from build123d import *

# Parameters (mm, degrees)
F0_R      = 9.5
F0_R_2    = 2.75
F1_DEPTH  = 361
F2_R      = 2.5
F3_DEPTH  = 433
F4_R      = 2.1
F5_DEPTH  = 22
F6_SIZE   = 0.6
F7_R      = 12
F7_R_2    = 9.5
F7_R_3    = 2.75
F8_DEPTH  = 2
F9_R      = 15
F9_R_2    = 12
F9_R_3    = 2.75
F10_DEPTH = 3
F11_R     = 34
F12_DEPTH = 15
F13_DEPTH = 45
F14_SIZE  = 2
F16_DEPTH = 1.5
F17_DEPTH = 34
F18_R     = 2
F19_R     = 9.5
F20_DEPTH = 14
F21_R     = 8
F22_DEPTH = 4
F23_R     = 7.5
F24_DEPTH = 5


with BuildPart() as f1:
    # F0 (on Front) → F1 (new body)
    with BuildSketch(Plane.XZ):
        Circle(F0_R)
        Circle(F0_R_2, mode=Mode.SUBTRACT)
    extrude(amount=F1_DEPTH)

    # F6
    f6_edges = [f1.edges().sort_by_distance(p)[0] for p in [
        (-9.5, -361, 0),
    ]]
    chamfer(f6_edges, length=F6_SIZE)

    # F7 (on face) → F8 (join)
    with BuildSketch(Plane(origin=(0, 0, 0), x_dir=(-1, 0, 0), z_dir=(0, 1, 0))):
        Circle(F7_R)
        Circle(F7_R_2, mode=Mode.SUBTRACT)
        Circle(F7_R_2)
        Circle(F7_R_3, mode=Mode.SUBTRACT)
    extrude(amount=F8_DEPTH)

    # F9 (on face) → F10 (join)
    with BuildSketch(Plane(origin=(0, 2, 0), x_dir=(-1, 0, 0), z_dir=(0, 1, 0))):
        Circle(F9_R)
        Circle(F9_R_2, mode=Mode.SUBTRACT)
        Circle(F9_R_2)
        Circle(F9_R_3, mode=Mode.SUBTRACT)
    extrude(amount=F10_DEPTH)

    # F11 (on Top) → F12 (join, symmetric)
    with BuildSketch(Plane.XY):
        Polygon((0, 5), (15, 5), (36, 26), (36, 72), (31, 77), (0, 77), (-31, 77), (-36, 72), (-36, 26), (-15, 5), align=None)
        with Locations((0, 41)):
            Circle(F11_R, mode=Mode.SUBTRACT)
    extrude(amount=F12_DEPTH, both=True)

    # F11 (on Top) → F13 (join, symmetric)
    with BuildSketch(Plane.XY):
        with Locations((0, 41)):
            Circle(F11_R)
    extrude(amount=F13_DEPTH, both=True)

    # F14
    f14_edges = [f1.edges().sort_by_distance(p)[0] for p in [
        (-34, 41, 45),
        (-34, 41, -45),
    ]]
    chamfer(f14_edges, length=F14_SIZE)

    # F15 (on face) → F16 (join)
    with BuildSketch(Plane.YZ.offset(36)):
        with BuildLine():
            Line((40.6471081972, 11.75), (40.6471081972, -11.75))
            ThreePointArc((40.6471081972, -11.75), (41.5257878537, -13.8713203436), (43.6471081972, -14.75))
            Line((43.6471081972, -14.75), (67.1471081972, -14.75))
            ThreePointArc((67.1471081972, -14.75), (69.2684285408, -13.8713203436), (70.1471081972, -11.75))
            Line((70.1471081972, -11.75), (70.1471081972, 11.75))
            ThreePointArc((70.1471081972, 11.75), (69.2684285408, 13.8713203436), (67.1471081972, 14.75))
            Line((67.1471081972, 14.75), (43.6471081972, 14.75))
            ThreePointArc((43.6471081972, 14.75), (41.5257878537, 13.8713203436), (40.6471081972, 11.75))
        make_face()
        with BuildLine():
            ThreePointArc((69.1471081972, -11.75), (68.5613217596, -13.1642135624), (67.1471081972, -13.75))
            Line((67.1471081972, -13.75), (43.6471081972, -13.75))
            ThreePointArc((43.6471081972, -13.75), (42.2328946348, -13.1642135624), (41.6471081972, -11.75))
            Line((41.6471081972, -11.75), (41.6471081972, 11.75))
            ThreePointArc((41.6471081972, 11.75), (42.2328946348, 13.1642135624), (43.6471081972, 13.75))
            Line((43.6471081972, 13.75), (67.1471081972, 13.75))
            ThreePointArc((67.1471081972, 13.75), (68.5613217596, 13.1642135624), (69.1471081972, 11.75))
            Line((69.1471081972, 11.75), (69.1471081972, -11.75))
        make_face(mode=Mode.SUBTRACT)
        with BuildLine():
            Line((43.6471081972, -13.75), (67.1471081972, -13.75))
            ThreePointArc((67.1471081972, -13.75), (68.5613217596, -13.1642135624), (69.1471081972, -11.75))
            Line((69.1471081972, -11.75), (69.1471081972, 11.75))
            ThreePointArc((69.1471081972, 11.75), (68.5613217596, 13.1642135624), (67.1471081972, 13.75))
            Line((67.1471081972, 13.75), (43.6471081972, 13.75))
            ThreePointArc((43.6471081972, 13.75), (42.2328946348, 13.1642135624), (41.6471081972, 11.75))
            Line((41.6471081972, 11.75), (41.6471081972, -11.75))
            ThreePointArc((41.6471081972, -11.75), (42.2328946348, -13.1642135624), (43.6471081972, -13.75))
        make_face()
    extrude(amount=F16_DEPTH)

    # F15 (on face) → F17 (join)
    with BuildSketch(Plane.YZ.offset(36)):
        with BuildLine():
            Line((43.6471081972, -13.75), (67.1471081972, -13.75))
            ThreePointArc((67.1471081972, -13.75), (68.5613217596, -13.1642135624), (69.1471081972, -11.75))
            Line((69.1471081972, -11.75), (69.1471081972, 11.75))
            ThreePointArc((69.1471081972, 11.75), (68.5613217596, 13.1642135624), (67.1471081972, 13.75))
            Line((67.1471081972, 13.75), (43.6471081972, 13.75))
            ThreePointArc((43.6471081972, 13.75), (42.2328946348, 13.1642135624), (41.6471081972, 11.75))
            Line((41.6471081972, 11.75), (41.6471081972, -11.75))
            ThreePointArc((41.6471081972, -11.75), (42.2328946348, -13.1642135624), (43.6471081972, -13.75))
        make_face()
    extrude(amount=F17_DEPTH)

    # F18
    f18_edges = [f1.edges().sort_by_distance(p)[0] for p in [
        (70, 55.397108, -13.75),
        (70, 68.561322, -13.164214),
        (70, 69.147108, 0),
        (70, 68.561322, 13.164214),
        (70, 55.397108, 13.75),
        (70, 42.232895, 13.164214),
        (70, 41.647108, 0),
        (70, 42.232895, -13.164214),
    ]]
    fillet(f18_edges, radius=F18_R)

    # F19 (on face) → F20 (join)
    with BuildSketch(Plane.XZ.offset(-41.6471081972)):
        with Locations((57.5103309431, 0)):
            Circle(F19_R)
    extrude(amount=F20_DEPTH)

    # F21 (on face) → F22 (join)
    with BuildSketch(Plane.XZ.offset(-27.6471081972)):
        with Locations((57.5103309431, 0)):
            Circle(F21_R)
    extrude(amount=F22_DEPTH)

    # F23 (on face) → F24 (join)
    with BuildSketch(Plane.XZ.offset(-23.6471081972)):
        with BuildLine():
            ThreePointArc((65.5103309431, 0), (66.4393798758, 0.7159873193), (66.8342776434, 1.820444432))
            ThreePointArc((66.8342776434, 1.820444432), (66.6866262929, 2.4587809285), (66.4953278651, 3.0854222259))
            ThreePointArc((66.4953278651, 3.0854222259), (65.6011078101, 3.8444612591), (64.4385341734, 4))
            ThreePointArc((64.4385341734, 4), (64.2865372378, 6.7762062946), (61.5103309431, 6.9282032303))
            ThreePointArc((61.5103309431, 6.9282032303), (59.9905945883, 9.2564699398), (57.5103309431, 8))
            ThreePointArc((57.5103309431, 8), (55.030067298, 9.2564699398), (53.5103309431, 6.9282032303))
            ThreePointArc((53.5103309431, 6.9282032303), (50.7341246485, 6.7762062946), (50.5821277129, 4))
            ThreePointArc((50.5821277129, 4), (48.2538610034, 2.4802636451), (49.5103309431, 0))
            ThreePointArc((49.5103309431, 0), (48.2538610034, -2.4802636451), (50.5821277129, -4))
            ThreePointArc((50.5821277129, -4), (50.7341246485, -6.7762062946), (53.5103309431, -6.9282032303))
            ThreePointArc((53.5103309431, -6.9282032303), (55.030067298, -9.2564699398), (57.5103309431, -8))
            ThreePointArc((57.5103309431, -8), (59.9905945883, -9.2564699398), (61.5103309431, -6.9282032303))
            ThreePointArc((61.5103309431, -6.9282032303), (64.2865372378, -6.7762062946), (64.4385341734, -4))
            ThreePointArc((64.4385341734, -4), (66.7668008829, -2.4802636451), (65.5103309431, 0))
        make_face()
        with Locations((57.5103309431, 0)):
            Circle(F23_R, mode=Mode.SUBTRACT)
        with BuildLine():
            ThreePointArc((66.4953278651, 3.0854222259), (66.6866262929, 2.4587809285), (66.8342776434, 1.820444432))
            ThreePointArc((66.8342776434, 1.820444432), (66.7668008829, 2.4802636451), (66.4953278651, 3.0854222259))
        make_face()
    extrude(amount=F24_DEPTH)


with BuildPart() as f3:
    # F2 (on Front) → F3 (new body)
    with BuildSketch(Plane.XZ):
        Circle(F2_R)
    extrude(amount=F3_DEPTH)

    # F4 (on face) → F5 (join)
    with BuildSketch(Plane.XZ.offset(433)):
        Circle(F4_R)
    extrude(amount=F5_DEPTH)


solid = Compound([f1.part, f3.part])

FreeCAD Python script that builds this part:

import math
import FreeCAD as App
import Part
import Sketcher
Q = App.Units.Quantity


def edges_at(feature, points):
    """Names of the edges that pass closest to the given points."""
    edges = feature.Shape.Edges
    near = lambda p: min(range(len(edges)), key=lambda i: edges[i].distToShape(Part.Vertex(*p))[0])
    return sorted({f"Edge{near(p) + 1}" for p in points})


def add_polygon(sketch, points):
    """Adds a closed chain of lines whose ends are joined by coincident constraints."""
    first, n = sketch.GeometryCount, len(points)
    for a, b in zip(points, points[1:] + points[:1]):
        sketch.addGeometry(Part.LineSegment(App.Vector(*a, 0), App.Vector(*b, 0)), False)
    for i in range(n):
        sketch.addConstraint(Sketcher.Constraint("Coincident", first + i, 2, first + (i + 1) % n, 1))

doc = App.newDocument("Part")
body = doc.addObject("PartDesign::Body", "Body")

# Sketch on XZ plane
sketch1 = doc.addObject("Sketcher::SketchObject", "Sketch")
body.addObject(sketch1)
sketch1.AttachmentSupport = (doc.XZ_Plane, [""])
sketch1.MapMode = "FlatFace"
sketch1.addGeometry([
    Part.Circle(App.Vector(0, 0, 0), App.Vector(0, 0, 1), 9.5),
    Part.Circle(App.Vector(0, 0, 0), App.Vector(0, 0, 1), 2.75),
], False)
sketch1.addConstraint([
    Sketcher.Constraint("Coincident", 0, 3, -1, 1),
    Sketcher.Constraint("Coincident", 1, 3, -1, 1),
    Sketcher.Constraint("Diameter", 0, Q("19 mm")),
    Sketcher.Constraint("Diameter", 1, Q("5.5 mm")),
])
pad1 = doc.addObject("PartDesign::Pad", "Pad")
body.addObject(pad1)
pad1.Profile = sketch1
pad1.Length = 361
doc.recompute()

chamfer = doc.addObject("PartDesign::Chamfer", "Chamfer")
body.addObject(chamfer)
chamfer.Base = (pad1, edges_at(pad1, [(-9.5, -361, 0)]))
chamfer.Size = 0.6

# Sketch on XZ plane
sketch2 = doc.addObject("Sketcher::SketchObject", "Sketch001")
body.addObject(sketch2)
sketch2.AttachmentSupport = (doc.XZ_Plane, [""])
sketch2.MapMode = "FlatFace"
sketch2.addGeometry([
    Part.Circle(App.Vector(0, 0, 0), App.Vector(0, 0, 1), 12),
    Part.Circle(App.Vector(0, 0, 0), App.Vector(0, 0, 1), 2.75),
], False)
sketch2.addConstraint([
    Sketcher.Constraint("Coincident", 0, 3, -1, 1),
    Sketcher.Constraint("Coincident", 1, 3, -1, 1),
    Sketcher.Constraint("Diameter", 0, Q("24 mm")),
    Sketcher.Constraint("Diameter", 1, Q("5.5 mm")),
])
pad2 = doc.addObject("PartDesign::Pad", "Pad001")
body.addObject(pad2)
pad2.Profile = sketch2
pad2.Length = 2
pad2.Reversed = True

# Sketch on XZ plane
sketch3 = doc.addObject("Sketcher::SketchObject", "Sketch002")
body.addObject(sketch3)
sketch3.AttachmentSupport = (doc.XZ_Plane, [""])
sketch3.MapMode = "FlatFace"
sketch3.AttachmentOffset = App.Placement(App.Vector(0, 0, -2), App.Rotation())
sketch3.addGeometry([
    Part.Circle(App.Vector(0, 0, 0), App.Vector(0, 0, 1), 15),
    Part.Circle(App.Vector(0, 0, 0), App.Vector(0, 0, 1), 2.75),
], False)
sketch3.addConstraint([
    Sketcher.Constraint("Coincident", 0, 3, -1, 1),
    Sketcher.Constraint("Coincident", 1, 3, -1, 1),
    Sketcher.Constraint("Diameter", 0, Q("30 mm")),
    Sketcher.Constraint("Diameter", 1, Q("5.5 mm")),
])
pad3 = doc.addObject("PartDesign::Pad", "Pad002")
body.addObject(pad3)
pad3.Profile = sketch3
pad3.Length = 3
pad3.Reversed = True

# Sketch on XY plane
sketch4 = doc.addObject("Sketcher::SketchObject", "Sketch003")
body.addObject(sketch4)
sketch4.AttachmentSupport = (doc.XY_Plane, [""])
sketch4.MapMode = "FlatFace"
add_polygon(sketch4, [(15, 5), (36, 26), (36, 72), (31, 77), (-31, 77), (-36, 72), (-36, 26), (-15, 5)])  # lines 0-7
sketch4.addGeometry(Part.Circle(App.Vector(0, 41, 0), App.Vector(0, 0, 1), 34), False)  # 8
sketch4.addConstraint([
    Sketcher.Constraint("Vertical", 1),
    Sketcher.Constraint("Horizontal", 3),
    Sketcher.Constraint("Vertical", 5),
    Sketcher.Constraint("Horizontal", 7),
    Sketcher.Constraint("Symmetric", 1, 2, 4, 2, -2),
    Sketcher.Constraint("PointOnObject", 8, 3, -2),
    Sketcher.Constraint("Perpendicular", 0, 2),
    Sketcher.Constraint("Perpendicular", 2, 4),
    Sketcher.Constraint("Perpendicular", 4, 6),
    Sketcher.Constraint("Horizontal", 0, 2, 5, 2),
    Sketcher.Constraint("Equal", 2, 4),
    Sketcher.Constraint("Diameter", 8, Q("68 mm")),
    Sketcher.Constraint("DistanceX", 3, 2, 3, 1, Q("62 mm")),
    Sketcher.Constraint("DistanceX", 7, 1, 7, 2, Q("30 mm")),
    Sketcher.Constraint("DistanceY", 1, 1, 1, 2, Q("46 mm")),
    Sketcher.Constraint("DistanceY", -1, 1, 8, 3, Q("41 mm")),
    Sketcher.Constraint("DistanceX", -1, 1, 0, 2, Q("36 mm")),
    Sketcher.Constraint("DistanceY", -1, 1, 0, 2, Q("26 mm")),
])
pad4 = doc.addObject("PartDesign::Pad", "Pad003")
body.addObject(pad4)
pad4.Profile = sketch4
pad4.Length = 30
pad4.Midplane = True

# Sketch on XY plane
sketch5 = doc.addObject("Sketcher::SketchObject", "Sketch004")
body.addObject(sketch5)
sketch5.AttachmentSupport = (doc.XY_Plane, [""])
sketch5.MapMode = "FlatFace"
sketch5.addGeometry(Part.Circle(App.Vector(0, 41, 0), App.Vector(0, 0, 1), 34), False)
sketch5.addConstraint([
    Sketcher.Constraint("PointOnObject", 0, 3, -2),
    Sketcher.Constraint("Diameter", 0, Q("68 mm")),
    Sketcher.Constraint("DistanceY", -1, 1, 0, 3, Q("41 mm")),
])
pad5 = doc.addObject("PartDesign::Pad", "Pad004")
body.addObject(pad5)
pad5.Profile = sketch5
pad5.Length = 90
pad5.Midplane = True
doc.recompute()

chamfer2 = doc.addObject("PartDesign::Chamfer", "Chamfer001")
body.addObject(chamfer2)
chamfer2.Base = (pad5, edges_at(pad5, [(-34, 41, 45), (-34, 41, -45)]))
chamfer2.Size = 2

# Sketch on YZ plane
sketch6 = doc.addObject("Sketcher::SketchObject", "Sketch005")
body.addObject(sketch6)
sketch6.AttachmentSupport = (doc.YZ_Plane, [""])
sketch6.MapMode = "FlatFace"
sketch6.AttachmentOffset = App.Placement(App.Vector(0, 0, 36), App.Rotation())
sketch6.addGeometry([
    Part.LineSegment(App.Vector(40.647108, 11.75, 0), App.Vector(40.647108, -11.75, 0)),  # 0
    Part.ArcOfCircle(Part.Circle(App.Vector(43.647108, -11.75, 0), App.Vector(0, 0, 1), 3), math.radians(180), math.radians(270)),  # 1
    Part.LineSegment(App.Vector(43.647108, -14.75, 0), App.Vector(67.147108, -14.75, 0)),  # 2
    Part.ArcOfCircle(Part.Circle(App.Vector(67.147108, -11.75, 0), App.Vector(0, 0, 1), 3), math.radians(-90), math.radians(0)),  # 3
    Part.LineSegment(App.Vector(70.147108, -11.75, 0), App.Vector(70.147108, 11.75, 0)),  # 4
    Part.ArcOfCircle(Part.Circle(App.Vector(67.147108, 11.75, 0), App.Vector(0, 0, 1), 3), math.radians(0), math.radians(90)),  # 5
    Part.LineSegment(App.Vector(67.147108, 14.75, 0), App.Vector(43.647108, 14.75, 0)),  # 6
    Part.ArcOfCircle(Part.Circle(App.Vector(43.647108, 11.75, 0), App.Vector(0, 0, 1), 3), math.radians(90), math.radians(180)),  # 7
], False)
sketch6.addConstraint([
    Sketcher.Constraint("Tangent", 0, 2, 1, 1),
    Sketcher.Constraint("Tangent", 1, 2, 2, 1),
    Sketcher.Constraint("Tangent", 2, 2, 3, 1),
    Sketcher.Constraint("Tangent", 3, 2, 4, 1),
    Sketcher.Constraint("Tangent", 4, 2, 5, 1),
    Sketcher.Constraint("Tangent", 5, 2, 6, 1),
    Sketcher.Constraint("Tangent", 6, 2, 7, 1),
    Sketcher.Constraint("Tangent", 7, 2, 0, 1),
    Sketcher.Constraint("Vertical", 0),
    Sketcher.Constraint("Horizontal", 2),
    Sketcher.Constraint("Vertical", 4),
    Sketcher.Constraint("Horizontal", 6),
    Sketcher.Constraint("Equal", 1, 3),
    Sketcher.Constraint("Equal", 3, 5),
    Sketcher.Constraint("Equal", 5, 7),
    Sketcher.Constraint("Equal", 6, 0),
    Sketcher.Constraint("Radius", 1, Q("3 mm")),
    Sketcher.Constraint("DistanceX", 2, 1, 2, 2, Q("23.5 mm")),
    Sketcher.Constraint("DistanceY", 1, 3, -1, 1, Q("11.75 mm")),
    Sketcher.Constraint("DistanceX", -1, 1, 1, 3, Q("43.647108 mm")),
])
pad6 = doc.addObject("PartDesign::Pad", "Pad005")
body.addObject(pad6)
pad6.Profile = sketch6
pad6.Length = 1.5

# Sketch on YZ plane
sketch7 = doc.addObject("Sketcher::SketchObject", "Sketch006")
body.addObject(sketch7)
sketch7.AttachmentSupport = (doc.YZ_Plane, [""])
sketch7.MapMode = "FlatFace"
sketch7.AttachmentOffset = App.Placement(App.Vector(0, 0, 36), App.Rotation())
sketch7.addGeometry([
    Part.LineSegment(App.Vector(43.647108, -13.75, 0), App.Vector(67.147108, -13.75, 0)),  # 0
    Part.ArcOfCircle(Part.Circle(App.Vector(67.147108, -11.75, 0), App.Vector(0, 0, 1), 2), math.radians(-90), math.radians(0)),  # 1
    Part.LineSegment(App.Vector(69.147108, -11.75, 0), App.Vector(69.147108, 11.75, 0)),  # 2
    Part.ArcOfCircle(Part.Circle(App.Vector(67.147108, 11.75, 0), App.Vector(0, 0, 1), 2), math.radians(0), math.radians(90)),  # 3
    Part.LineSegment(App.Vector(67.147108, 13.75, 0), App.Vector(43.647108, 13.75, 0)),  # 4
    Part.ArcOfCircle(Part.Circle(App.Vector(43.647108, 11.75, 0), App.Vector(0, 0, 1), 2), math.radians(90), math.radians(180)),  # 5
    Part.LineSegment(App.Vector(41.647108, 11.75, 0), App.Vector(41.647108, -11.75, 0)),  # 6
    Part.ArcOfCircle(Part.Circle(App.Vector(43.647108, -11.75, 0), App.Vector(0, 0, 1), 2), math.radians(180), math.radians(270)),  # 7
], False)
sketch7.addConstraint([
    Sketcher.Constraint("Tangent", 0, 2, 1, 1),
    Sketcher.Constraint("Tangent", 1, 2, 2, 1),
    Sketcher.Constraint("Tangent", 2, 2, 3, 1),
    Sketcher.Constraint("Tangent", 3, 2, 4, 1),
    Sketcher.Constraint("Tangent", 4, 2, 5, 1),
    Sketcher.Constraint("Tangent", 5, 2, 6, 1),
    Sketcher.Constraint("Tangent", 6, 2, 7, 1),
    Sketcher.Constraint("Tangent", 7, 2, 0, 1),
    Sketcher.Constraint("Horizontal", 0),
    Sketcher.Constraint("Vertical", 2),
    Sketcher.Constraint("Horizontal", 4),
    Sketcher.Constraint("Vertical", 6),
    Sketcher.Constraint("Equal", 1, 3),
    Sketcher.Constraint("Equal", 3, 5),
    Sketcher.Constraint("Equal", 5, 7),
    Sketcher.Constraint("Equal", 4, 2),
    Sketcher.Constraint("Radius", 1, Q("2 mm")),
    Sketcher.Constraint("DistanceX", 0, 1, 0, 2, Q("23.5 mm")),
    Sketcher.Constraint("DistanceY", 1, 3, -1, 1, Q("11.75 mm")),
    Sketcher.Constraint("DistanceX", -1, 1, 1, 3, Q("67.147108 mm")),
])
pad7 = doc.addObject("PartDesign::Pad", "Pad006")
body.addObject(pad7)
pad7.Profile = sketch7
pad7.Length = 34
doc.recompute()

fillet = doc.addObject("PartDesign::Fillet", "Fillet")
body.addObject(fillet)
fillet.Base = (pad7, edges_at(pad7, [
    (70, 55.397, -13.75),
    (70, 68.561, -13.164),
    (70, 69.147, 0),
    (70, 68.561, 13.164),
    (70, 55.397, 13.75),
    (70, 42.233, 13.164),
    (70, 41.647, 0),
    (70, 42.233, -13.164),
]))
fillet.Radius = 2

# Sketch on XZ plane
sketch8 = doc.addObject("Sketcher::SketchObject", "Sketch007")
body.addObject(sketch8)
sketch8.AttachmentSupport = (doc.XZ_Plane, [""])
sketch8.MapMode = "FlatFace"
sketch8.AttachmentOffset = App.Placement(App.Vector(0, 0, -41.647108), App.Rotation())
sketch8.addGeometry(Part.Circle(App.Vector(57.510331, 0, 0), App.Vector(0, 0, 1), 9.5), False)
sketch8.addConstraint([
    Sketcher.Constraint("PointOnObject", 0, 3, -1),
    Sketcher.Constraint("Diameter", 0, Q("19 mm")),
    Sketcher.Constraint("DistanceX", -1, 1, 0, 3, Q("57.510331 mm")),
])
pad8 = doc.addObject("PartDesign::Pad", "Pad007")
body.addObject(pad8)
pad8.Profile = sketch8
pad8.Length = 14

# Sketch on XZ plane
sketch9 = doc.addObject("Sketcher::SketchObject", "Sketch008")
body.addObject(sketch9)
sketch9.AttachmentSupport = (doc.XZ_Plane, [""])
sketch9.MapMode = "FlatFace"
sketch9.AttachmentOffset = App.Placement(App.Vector(0, 0, -27.647108), App.Rotation())
sketch9.addGeometry(Part.Circle(App.Vector(57.510331, 0, 0), App.Vector(0, 0, 1), 8), False)
sketch9.addConstraint([
    Sketcher.Constraint("PointOnObject", 0, 3, -1),
    Sketcher.Constraint("Diameter", 0, Q("16 mm")),
    Sketcher.Constraint("DistanceX", -1, 1, 0, 3, Q("57.510331 mm")),
])
pad9 = doc.addObject("PartDesign::Pad", "Pad008")
body.addObject(pad9)
pad9.Profile = sketch9
pad9.Length = 4

# Sketch on XZ plane
sketch10 = doc.addObject("Sketcher::SketchObject", "Sketch009")
body.addObject(sketch10)
sketch10.AttachmentSupport = (doc.XZ_Plane, [""])
sketch10.MapMode = "FlatFace"
sketch10.AttachmentOffset = App.Placement(App.Vector(0, 0, -23.647108), App.Rotation())
sketch10.addGeometry([
    Part.ArcOfCircle(Part.Circle(App.Vector(64.754775, 1.941143, 0), App.Vector(0, 0, 1), 2.083003), math.radians(-68.732384), math.radians(-3.321832)),  # 0
    Part.ArcOfCircle(Part.Circle(App.Vector(64.754775, 1.941143, 0), App.Vector(0, 0, 1), 2.083003), math.radians(-3.321832), math.radians(33.321832)),  # 1
    Part.ArcOfCircle(Part.Circle(App.Vector(64.754775, 1.941143, 0), App.Vector(0, 0, 1), 2.083003), math.radians(33.321832), math.radians(98.732384)),  # 2
    Part.ArcOfCircle(Part.Circle(App.Vector(62.813632, 5.303301, 0), App.Vector(0, 0, 1), 2.083003), math.radians(-38.732384), math.radians(128.732384)),  # 3
    Part.ArcOfCircle(Part.Circle(App.Vector(59.451474, 7.244444, 0), App.Vector(0, 0, 1), 2.083003), math.radians(-8.732384), math.radians(158.732384)),  # 4
    Part.ArcOfCircle(Part.Circle(App.Vector(55.569188, 7.244444, 0), App.Vector(0, 0, 1), 2.083003), math.radians(21.267616), math.radians(188.732384)),  # 5
    Part.ArcOfCircle(Part.Circle(App.Vector(52.20703, 5.303301, 0), App.Vector(0, 0, 1), 2.083003), math.radians(51.267616), math.radians(218.732384)),  # 6
    Part.ArcOfCircle(Part.Circle(App.Vector(50.265887, 1.941143, 0), App.Vector(0, 0, 1), 2.083003), math.radians(81.267616), math.radians(248.732384)),  # 7
    Part.ArcOfCircle(Part.Circle(App.Vector(50.265887, -1.941143, 0), App.Vector(0, 0, 1), 2.083003), math.radians(111.267616), math.radians(278.732384)),  # 8
    Part.ArcOfCircle(Part.Circle(App.Vector(52.20703, -5.303301, 0), App.Vector(0, 0, 1), 2.083003), math.radians(141.267616), math.radians(308.732384)),  # 9
    Part.ArcOfCircle(Part.Circle(App.Vector(55.569188, -7.244444, 0), App.Vector(0, 0, 1), 2.083003), math.radians(171.267616), math.radians(338.732384)),  # 10
    Part.ArcOfCircle(Part.Circle(App.Vector(59.451474, -7.244444, 0), App.Vector(0, 0, 1), 2.083003), math.radians(-158.732384), math.radians(8.732384)),  # 11
    Part.ArcOfCircle(Part.Circle(App.Vector(62.813632, -5.303301, 0), App.Vector(0, 0, 1), 2.083003), math.radians(-128.732384), math.radians(38.732384)),  # 12
    Part.ArcOfCircle(Part.Circle(App.Vector(64.754775, -1.941143, 0), App.Vector(0, 0, 1), 2.083003), math.radians(-98.732384), math.radians(68.732384)),  # 13
    Part.Circle(App.Vector(57.510331, 0, 0), App.Vector(0, 0, 1), 7.5),  # 14
], False)
sketch10.addConstraint([
    Sketcher.Constraint("Tangent", 0, 2, 1, 1),
    Sketcher.Constraint("Tangent", 1, 2, 2, 1),
    Sketcher.Constraint("Coincident", 2, 2, 3, 1),
    Sketcher.Constraint("Coincident", 3, 2, 4, 1),
    Sketcher.Constraint("Coincident", 4, 2, 5, 1),
    Sketcher.Constraint("Coincident", 5, 2, 6, 1),
    Sketcher.Constraint("Coincident", 6, 2, 7, 1),
    Sketcher.Constraint("Coincident", 7, 2, 8, 1),
    Sketcher.Constraint("Coincident", 8, 2, 9, 1),
    Sketcher.Constraint("Coincident", 9, 2, 10, 1),
    Sketcher.Constraint("Coincident", 10, 2, 11, 1),
    Sketcher.Constraint("Coincident", 11, 2, 12, 1),
    Sketcher.Constraint("Coincident", 12, 2, 13, 1),
    Sketcher.Constraint("Coincident", 13, 2, 0, 1),
    Sketcher.Constraint("Coincident", 2, 3, 0, 3),
    Sketcher.Constraint("Equal", 2, 3),
    Sketcher.Constraint("Equal", 3, 4),
    Sketcher.Constraint("Equal", 4, 5),
    Sketcher.Constraint("Equal", 5, 6),
    Sketcher.Constraint("Equal", 6, 7),
    Sketcher.Constraint("Equal", 7, 8),
    Sketcher.Constraint("Equal", 8, 9),
    Sketcher.Constraint("Equal", 9, 10),
    Sketcher.Constraint("Equal", 10, 11),
    Sketcher.Constraint("Equal", 11, 12),
    Sketcher.Constraint("Equal", 12, 13),
    Sketcher.Constraint("Symmetric", 7, 3, 8, 3, -1),
    Sketcher.Constraint("Symmetric", 6, 3, 9, 3, -1),
    Sketcher.Constraint("Symmetric", 5, 3, 10, 3, -1),
    Sketcher.Constraint("Symmetric", 4, 3, 11, 3, -1),
    Sketcher.Constraint("Symmetric", 3, 3, 12, 3, -1),
    Sketcher.Constraint("Symmetric", 0, 3, 13, 3, -1),
    Sketcher.Constraint("PointOnObject", 14, 3, -1),
    Sketcher.Constraint("Horizontal", 4, 3, 5, 3),
    Sketcher.Constraint("Horizontal", 3, 3, 6, 3),
    Sketcher.Constraint("Horizontal", 2, 3, 7, 3),
    Sketcher.Constraint("Horizontal", 3, 2, 5, 2),
    Sketcher.Constraint("Horizontal", 2, 2, 6, 2),
    Sketcher.Constraint("Vertical", 14, 3, 4, 2),
    Sketcher.Constraint("Diameter", 14, Q("15 mm")),
    Sketcher.Constraint("DistanceY", -1, 1, 2, 2, Q("4 mm")),
    Sketcher.Constraint("DistanceY", -1, 1, 4, 2, Q("8 mm")),
    Sketcher.Constraint("DistanceX", 4, 2, 3, 2, Q("4 mm")),
    Sketcher.Constraint("Radius", 0, Q("2.083003 mm")),
    Sketcher.Constraint("DistanceY", -1, 1, 3, 3, Q("5.303301 mm")),
    Sketcher.Constraint("DistanceX", 4, 3, 0, 3, Q("5.303301 mm")),
    Sketcher.Constraint("DistanceY", 0, 3, 4, 3, Q("5.303301 mm")),
    Sketcher.Constraint("DistanceY", 0, 2, 0, 3, Q("0.120698 mm")),
    Sketcher.Constraint("DistanceX", -1, 1, 3, 3, Q("62.813632 mm")),
    Sketcher.Constraint("DistanceX", 1, 2, 0, 2, Q("0.33895 mm")),
])
pad10 = doc.addObject("PartDesign::Pad", "Pad009")
body.addObject(pad10)
pad10.Profile = sketch10
pad10.Length = 5
body2 = doc.addObject("PartDesign::Body", "Body001")

# Sketch on XZ plane
sketch11 = doc.addObject("Sketcher::SketchObject", "Sketch010")
body2.addObject(sketch11)
sketch11.AttachmentSupport = (doc.getObject("XZ_Plane001"), [""])
sketch11.MapMode = "FlatFace"
sketch11.addGeometry(Part.Circle(App.Vector(0, 0, 0), App.Vector(0, 0, 1), 2.5), False)
sketch11.addConstraint([
    Sketcher.Constraint("Coincident", 0, 3, -1, 1),
    Sketcher.Constraint("Diameter", 0, Q("5 mm")),
])
pad11 = doc.addObject("PartDesign::Pad", "Pad010")
body2.addObject(pad11)
pad11.Profile = sketch11
pad11.Length = 433

# Sketch on XZ plane
sketch12 = doc.addObject("Sketcher::SketchObject", "Sketch011")
body2.addObject(sketch12)
sketch12.AttachmentSupport = (doc.getObject("XZ_Plane001"), [""])
sketch12.MapMode = "FlatFace"
sketch12.AttachmentOffset = App.Placement(App.Vector(0, 0, 433), App.Rotation())
sketch12.addGeometry(Part.Circle(App.Vector(0, 0, 0), App.Vector(0, 0, 1), 2.1), False)
sketch12.addConstraint([
    Sketcher.Constraint("Coincident", 0, 3, -1, 1),
    Sketcher.Constraint("Diameter", 0, Q("4.2 mm")),
])
pad12 = doc.addObject("PartDesign::Pad", "Pad011")
body2.addObject(pad12)
pad12.Profile = sketch12
pad12.Length = 22

doc.recompute()
